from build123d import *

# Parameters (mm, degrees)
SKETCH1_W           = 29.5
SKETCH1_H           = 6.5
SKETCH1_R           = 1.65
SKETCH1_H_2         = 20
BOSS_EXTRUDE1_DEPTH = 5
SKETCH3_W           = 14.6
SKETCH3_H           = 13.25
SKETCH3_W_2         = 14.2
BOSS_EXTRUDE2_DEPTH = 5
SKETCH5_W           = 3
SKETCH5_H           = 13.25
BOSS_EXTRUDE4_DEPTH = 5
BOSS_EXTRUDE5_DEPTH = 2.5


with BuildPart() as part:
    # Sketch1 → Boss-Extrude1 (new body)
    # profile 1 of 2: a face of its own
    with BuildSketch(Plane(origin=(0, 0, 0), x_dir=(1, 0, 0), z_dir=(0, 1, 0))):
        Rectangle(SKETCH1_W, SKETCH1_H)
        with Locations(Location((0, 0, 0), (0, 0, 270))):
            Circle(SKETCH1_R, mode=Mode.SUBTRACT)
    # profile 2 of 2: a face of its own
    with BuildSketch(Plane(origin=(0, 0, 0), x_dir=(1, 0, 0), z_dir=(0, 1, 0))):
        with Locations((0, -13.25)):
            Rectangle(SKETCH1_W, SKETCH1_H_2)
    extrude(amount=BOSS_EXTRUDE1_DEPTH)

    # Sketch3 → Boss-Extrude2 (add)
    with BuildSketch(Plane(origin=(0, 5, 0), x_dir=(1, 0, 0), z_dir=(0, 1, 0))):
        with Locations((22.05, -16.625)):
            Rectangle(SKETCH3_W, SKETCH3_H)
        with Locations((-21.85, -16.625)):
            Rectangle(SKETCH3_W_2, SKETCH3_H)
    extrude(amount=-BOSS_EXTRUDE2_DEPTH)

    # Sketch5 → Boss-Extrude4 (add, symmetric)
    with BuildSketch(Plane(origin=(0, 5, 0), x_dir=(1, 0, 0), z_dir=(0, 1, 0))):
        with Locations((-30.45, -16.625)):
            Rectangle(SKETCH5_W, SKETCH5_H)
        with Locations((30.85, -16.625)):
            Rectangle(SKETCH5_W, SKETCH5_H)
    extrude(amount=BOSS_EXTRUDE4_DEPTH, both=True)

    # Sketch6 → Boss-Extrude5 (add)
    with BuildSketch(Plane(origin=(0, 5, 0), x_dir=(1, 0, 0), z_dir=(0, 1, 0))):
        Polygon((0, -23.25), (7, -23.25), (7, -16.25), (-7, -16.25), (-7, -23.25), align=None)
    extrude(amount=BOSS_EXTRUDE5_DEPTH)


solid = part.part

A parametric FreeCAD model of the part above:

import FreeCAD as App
import Part
import Sketcher
from FreeCAD import Vector
Q = App.Units.Quantity

doc = App.newDocument("Part")
body = doc.addObject("PartDesign::Body", "Body")

sketch1 = doc.addObject("Sketcher::SketchObject", "Sketch")
body.addObject(sketch1)
sketch1.AttachmentSupport = (doc.XZ_Plane, [""])
sketch1.MapMode = "FlatFace"
sketch1.addGeometry([
    Part.LineSegment(Vector(-14.8, -3.2, 0), Vector(-14.8, 23.2, 0)),
    Part.LineSegment(Vector(-14.8, 23.2, 0), Vector(14.8, 23.2, 0)),
    Part.LineSegment(Vector(14.8, 23.2, 0), Vector(14.8, -3.2, 0)),
    Part.LineSegment(Vector(14.8, -3.2, 0), Vector(-14.8, -3.2, 0)),
    Part.Circle(Vector(0, 0, 0), Vector(0, 0, 1), 1.6),
], False)
sketch1.addConstraint([
    Sketcher.Constraint("Coincident", 0, 2, 1, 1),
    Sketcher.Constraint("Coincident", 1, 2, 2, 1),
    Sketcher.Constraint("Coincident", 2, 2, 3, 1),
    Sketcher.Constraint("Coincident", 3, 2, 0, 1),
    Sketcher.Constraint("Vertical", 0),
    Sketcher.Constraint("Horizontal", 1),
    Sketcher.Constraint("Vertical", 2),
    Sketcher.Constraint("Horizontal", 3),
    Sketcher.Constraint("Coincident", 4, 3, -1, 1),
    Sketcher.Constraint("Diameter", 4, Q("3.3 mm")),
    Sketcher.Constraint("DistanceX", 1, 1, 1, 2, Q("29.5 mm")),
    Sketcher.Constraint("DistanceY", 0, 1, 0, 2, Q("26.5 mm")),
    Sketcher.Constraint("DistanceX", 0, 2, -1, 1, Q("14.75 mm")),
    Sketcher.Constraint("DistanceY", -1, 1, 0, 2, Q("23.25 mm")),
])
pad1 = doc.addObject("PartDesign::Pad", "Pad")
body.addObject(pad1)
pad1.Profile = sketch1
pad1.Length = 5
pad1.Reversed = True

sketch2 = doc.addObject("Sketcher::SketchObject", "Sketch001")
body.addObject(sketch2)
sketch2.AttachmentSupport = (doc.XZ_Plane, [""])
sketch2.MapMode = "FlatFace"
sketch2.AttachmentOffset = App.Placement(Vector(0, 0, -5), App.Rotation())
sketch2.addGeometry([
    Part.LineSegment(Vector(15, 10, 0), Vector(15, 23, 0)),
    Part.LineSegment(Vector(15, 23, 0), Vector(29, 23, 0)),
    Part.LineSegment(Vector(29, 23, 0), Vector(29, 10, 0)),
    Part.LineSegment(Vector(29, 10, 0), Vector(15, 10, 0)),
    Part.LineSegment(Vector(-29, 10, 0), Vector(-29, 23, 0)),
    Part.LineSegment(Vector(-29, 23, 0), Vector(-15, 23, 0)),
    Part.LineSegment(Vector(-15, 23, 0), Vector(-15, 10, 0)),
    Part.LineSegment(Vector(-15, 10, 0), Vector(-29, 10, 0)),
], False)
sketch2.addConstraint([
    Sketcher.Constraint("Coincident", 0, 2, 1, 1),
    Sketcher.Constraint("Coincident", 1, 2, 2, 1),
    Sketcher.Constraint("Coincident", 2, 2, 3, 1),
    Sketcher.Constraint("Coincident", 3, 2, 0, 1),
    Sketcher.Constraint("Coincident", 4, 2, 5, 1),
    Sketcher.Constraint("Coincident", 5, 2, 6, 1),
    Sketcher.Constraint("Coincident", 6, 2, 7, 1),
    Sketcher.Constraint("Coincident", 7, 2, 4, 1),
    Sketcher.Constraint("Vertical", 0),
    Sketcher.Constraint("Horizontal", 1),
    Sketcher.Constraint("Vertical", 2),
    Sketcher.Constraint("Horizontal", 3),
    Sketcher.Constraint("Vertical", 4),
    Sketcher.Constraint("Horizontal", 5),
    Sketcher.Constraint("Vertical", 6),
    Sketcher.Constraint("Horizontal", 7),
    Sketcher.Constraint("Symmetric", 0, 2, 5, 2, -2),
    Sketcher.Constraint("Horizontal", 3, 2, 6, 2),
    Sketcher.Constraint("DistanceX", 1, 1, 1, 2, Q("14.6 mm")),
    Sketcher.Constraint("DistanceX", 5, 1, 5, 2, Q("14.2 mm")),
    Sketcher.Constraint("DistanceY", -1, 1, 2, 2, Q("10 mm")),
    Sketcher.Constraint("DistanceY", 0, 1, 0, 2, Q("13.25 mm")),
    Sketcher.Constraint("DistanceX", 4, 2, 0, 2, Q("43.7 mm")),
])
pad2 = doc.addObject("PartDesign::Pad", "Pad001")
body.addObject(pad2)
pad2.Profile = sketch2
pad2.Length = 5

sketch3 = doc.addObject("Sketcher::SketchObject", "Sketch002")
body.addObject(sketch3)
sketch3.AttachmentSupport = (doc.XZ_Plane, [""])
sketch3.MapMode = "FlatFace"
sketch3.AttachmentOffset = App.Placement(Vector(0, 0, -5), App.Rotation())
sketch3.addGeometry([
    Part.LineSegment(Vector(-31.9, 10, 0), Vector(-31.9, 23.2, 0)),
    Part.LineSegment(Vector(-31.9, 23.2, 0), Vector(-28.9, 23.2, 0)),
    Part.LineSegment(Vector(-28.9, 23.2, 0), Vector(-28.9, 10, 0)),
    Part.LineSegment(Vector(-28.9, 10, 0), Vector(-31.9, 10, 0)),
    Part.LineSegment(Vector(29.4, 10, 0), Vector(29.4, 23.2, 0)),
    Part.LineSegment(Vector(29.4, 23.2, 0), Vector(32.4, 23.2, 0)),
    Part.LineSegment(Vector(32.4, 23.2, 0), Vector(32.4, 10, 0)),
    Part.LineSegment(Vector(32.4, 10, 0), Vector(29.4, 10, 0)),
], False)
sketch3.addConstraint([
    Sketcher.Constraint("Coincident", 0, 2, 1, 1),
    Sketcher.Constraint("Coincident", 1, 2, 2, 1),
    Sketcher.Constraint("Coincident", 2, 2, 3, 1),
    Sketcher.Constraint("Coincident", 3, 2, 0, 1),
    Sketcher.Constraint("Coincident", 4, 2, 5, 1),
    Sketcher.Constraint("Coincident", 5, 2, 6, 1),
    Sketcher.Constraint("Coincident", 6, 2, 7, 1),
    Sketcher.Constraint("Coincident", 7, 2, 4, 1),
    Sketcher.Constraint("Vertical", 0),
    Sketcher.Constraint("Horizontal", 1),
    Sketcher.Constraint("Vertical", 2),
    Sketcher.Constraint("Horizontal", 3),
    Sketcher.Constraint("Vertical", 4),
    Sketcher.Constraint("Horizontal", 5),
    Sketcher.Constraint("Vertical", 6),
    Sketcher.Constraint("Horizontal", 7),
    Sketcher.Constraint("Horizontal", 1, 2, 4, 2),
    Sketcher.Constraint("Horizontal", 3, 2, 6, 2),
    Sketcher.Constraint("Equal", 3, 5),
    Sketcher.Constraint("DistanceX", 1, 1, 1, 2, Q("3 mm")),
    Sketcher.Constraint("DistanceY", -1, 1, 2, 2, Q("10 mm")),
    Sketcher.Constraint("DistanceY", 0, 1, 0, 2, Q("13.25 mm")),
    Sketcher.Constraint("DistanceX", 1, 2, 4, 2, Q("58.3 mm")),
    Sketcher.Constraint("DistanceX", 0, 2, -1, 1, Q("31.95 mm")),
])
pad3 = doc.addObject("PartDesign::Pad", "Pad002")
body.addObject(pad3)
pad3.Profile = sketch3
pad3.Length = 10
pad3.Midplane = True

sketch4 = doc.addObject("Sketcher::SketchObject", "Sketch003")
body.addObject(sketch4)
sketch4.AttachmentSupport = (doc.XZ_Plane, [""])
sketch4.MapMode = "FlatFace"
sketch4.AttachmentOffset = App.Placement(Vector(0, 0, -5), App.Rotation())
sketch4.addGeometry([
    Part.LineSegment(Vector(7, 23, 0), Vector(7, 16, 0)),
    Part.LineSegment(Vector(7, 16, 0), Vector(-7, 16, 0)),
    Part.LineSegment(Vector(-7, 16, 0), Vector(-7, 23, 0)),
    Part.LineSegment(Vector(-7, 23, 0), Vector(7, 23, 0)),
], False)
sketch4.addConstraint([
    Sketcher.Constraint("Coincident", 0, 2, 1, 1),
    Sketcher.Constraint("Coincident", 1, 2, 2, 1),
    Sketcher.Constraint("Coincident", 2, 2, 3, 1),
    Sketcher.Constraint("Coincident", 3, 2, 0, 1),
    Sketcher.Constraint("Vertical", 0),
    Sketcher.Constraint("Horizontal", 1),
    Sketcher.Constraint("Vertical", 2),
    Sketcher.Constraint("Horizontal", 3),
    Sketcher.Constraint("DistanceX", 1, 2, 1, 1, Q("14 mm")),
    Sketcher.Constraint("DistanceY", 0, 2, 0, 1, Q("7 mm")),
    Sketcher.Constraint("DistanceX", -1, 1, 0, 2, Q("7 mm")),
    Sketcher.Constraint("DistanceY", -1, 1, 0, 2, Q("16.25 mm")),
])
pad4 = doc.addObject("PartDesign::Pad", "Pad003")
body.addObject(pad4)
pad4.Profile = sketch4
pad4.Length = 2.5
pad4.Reversed = True

doc.recompute()
